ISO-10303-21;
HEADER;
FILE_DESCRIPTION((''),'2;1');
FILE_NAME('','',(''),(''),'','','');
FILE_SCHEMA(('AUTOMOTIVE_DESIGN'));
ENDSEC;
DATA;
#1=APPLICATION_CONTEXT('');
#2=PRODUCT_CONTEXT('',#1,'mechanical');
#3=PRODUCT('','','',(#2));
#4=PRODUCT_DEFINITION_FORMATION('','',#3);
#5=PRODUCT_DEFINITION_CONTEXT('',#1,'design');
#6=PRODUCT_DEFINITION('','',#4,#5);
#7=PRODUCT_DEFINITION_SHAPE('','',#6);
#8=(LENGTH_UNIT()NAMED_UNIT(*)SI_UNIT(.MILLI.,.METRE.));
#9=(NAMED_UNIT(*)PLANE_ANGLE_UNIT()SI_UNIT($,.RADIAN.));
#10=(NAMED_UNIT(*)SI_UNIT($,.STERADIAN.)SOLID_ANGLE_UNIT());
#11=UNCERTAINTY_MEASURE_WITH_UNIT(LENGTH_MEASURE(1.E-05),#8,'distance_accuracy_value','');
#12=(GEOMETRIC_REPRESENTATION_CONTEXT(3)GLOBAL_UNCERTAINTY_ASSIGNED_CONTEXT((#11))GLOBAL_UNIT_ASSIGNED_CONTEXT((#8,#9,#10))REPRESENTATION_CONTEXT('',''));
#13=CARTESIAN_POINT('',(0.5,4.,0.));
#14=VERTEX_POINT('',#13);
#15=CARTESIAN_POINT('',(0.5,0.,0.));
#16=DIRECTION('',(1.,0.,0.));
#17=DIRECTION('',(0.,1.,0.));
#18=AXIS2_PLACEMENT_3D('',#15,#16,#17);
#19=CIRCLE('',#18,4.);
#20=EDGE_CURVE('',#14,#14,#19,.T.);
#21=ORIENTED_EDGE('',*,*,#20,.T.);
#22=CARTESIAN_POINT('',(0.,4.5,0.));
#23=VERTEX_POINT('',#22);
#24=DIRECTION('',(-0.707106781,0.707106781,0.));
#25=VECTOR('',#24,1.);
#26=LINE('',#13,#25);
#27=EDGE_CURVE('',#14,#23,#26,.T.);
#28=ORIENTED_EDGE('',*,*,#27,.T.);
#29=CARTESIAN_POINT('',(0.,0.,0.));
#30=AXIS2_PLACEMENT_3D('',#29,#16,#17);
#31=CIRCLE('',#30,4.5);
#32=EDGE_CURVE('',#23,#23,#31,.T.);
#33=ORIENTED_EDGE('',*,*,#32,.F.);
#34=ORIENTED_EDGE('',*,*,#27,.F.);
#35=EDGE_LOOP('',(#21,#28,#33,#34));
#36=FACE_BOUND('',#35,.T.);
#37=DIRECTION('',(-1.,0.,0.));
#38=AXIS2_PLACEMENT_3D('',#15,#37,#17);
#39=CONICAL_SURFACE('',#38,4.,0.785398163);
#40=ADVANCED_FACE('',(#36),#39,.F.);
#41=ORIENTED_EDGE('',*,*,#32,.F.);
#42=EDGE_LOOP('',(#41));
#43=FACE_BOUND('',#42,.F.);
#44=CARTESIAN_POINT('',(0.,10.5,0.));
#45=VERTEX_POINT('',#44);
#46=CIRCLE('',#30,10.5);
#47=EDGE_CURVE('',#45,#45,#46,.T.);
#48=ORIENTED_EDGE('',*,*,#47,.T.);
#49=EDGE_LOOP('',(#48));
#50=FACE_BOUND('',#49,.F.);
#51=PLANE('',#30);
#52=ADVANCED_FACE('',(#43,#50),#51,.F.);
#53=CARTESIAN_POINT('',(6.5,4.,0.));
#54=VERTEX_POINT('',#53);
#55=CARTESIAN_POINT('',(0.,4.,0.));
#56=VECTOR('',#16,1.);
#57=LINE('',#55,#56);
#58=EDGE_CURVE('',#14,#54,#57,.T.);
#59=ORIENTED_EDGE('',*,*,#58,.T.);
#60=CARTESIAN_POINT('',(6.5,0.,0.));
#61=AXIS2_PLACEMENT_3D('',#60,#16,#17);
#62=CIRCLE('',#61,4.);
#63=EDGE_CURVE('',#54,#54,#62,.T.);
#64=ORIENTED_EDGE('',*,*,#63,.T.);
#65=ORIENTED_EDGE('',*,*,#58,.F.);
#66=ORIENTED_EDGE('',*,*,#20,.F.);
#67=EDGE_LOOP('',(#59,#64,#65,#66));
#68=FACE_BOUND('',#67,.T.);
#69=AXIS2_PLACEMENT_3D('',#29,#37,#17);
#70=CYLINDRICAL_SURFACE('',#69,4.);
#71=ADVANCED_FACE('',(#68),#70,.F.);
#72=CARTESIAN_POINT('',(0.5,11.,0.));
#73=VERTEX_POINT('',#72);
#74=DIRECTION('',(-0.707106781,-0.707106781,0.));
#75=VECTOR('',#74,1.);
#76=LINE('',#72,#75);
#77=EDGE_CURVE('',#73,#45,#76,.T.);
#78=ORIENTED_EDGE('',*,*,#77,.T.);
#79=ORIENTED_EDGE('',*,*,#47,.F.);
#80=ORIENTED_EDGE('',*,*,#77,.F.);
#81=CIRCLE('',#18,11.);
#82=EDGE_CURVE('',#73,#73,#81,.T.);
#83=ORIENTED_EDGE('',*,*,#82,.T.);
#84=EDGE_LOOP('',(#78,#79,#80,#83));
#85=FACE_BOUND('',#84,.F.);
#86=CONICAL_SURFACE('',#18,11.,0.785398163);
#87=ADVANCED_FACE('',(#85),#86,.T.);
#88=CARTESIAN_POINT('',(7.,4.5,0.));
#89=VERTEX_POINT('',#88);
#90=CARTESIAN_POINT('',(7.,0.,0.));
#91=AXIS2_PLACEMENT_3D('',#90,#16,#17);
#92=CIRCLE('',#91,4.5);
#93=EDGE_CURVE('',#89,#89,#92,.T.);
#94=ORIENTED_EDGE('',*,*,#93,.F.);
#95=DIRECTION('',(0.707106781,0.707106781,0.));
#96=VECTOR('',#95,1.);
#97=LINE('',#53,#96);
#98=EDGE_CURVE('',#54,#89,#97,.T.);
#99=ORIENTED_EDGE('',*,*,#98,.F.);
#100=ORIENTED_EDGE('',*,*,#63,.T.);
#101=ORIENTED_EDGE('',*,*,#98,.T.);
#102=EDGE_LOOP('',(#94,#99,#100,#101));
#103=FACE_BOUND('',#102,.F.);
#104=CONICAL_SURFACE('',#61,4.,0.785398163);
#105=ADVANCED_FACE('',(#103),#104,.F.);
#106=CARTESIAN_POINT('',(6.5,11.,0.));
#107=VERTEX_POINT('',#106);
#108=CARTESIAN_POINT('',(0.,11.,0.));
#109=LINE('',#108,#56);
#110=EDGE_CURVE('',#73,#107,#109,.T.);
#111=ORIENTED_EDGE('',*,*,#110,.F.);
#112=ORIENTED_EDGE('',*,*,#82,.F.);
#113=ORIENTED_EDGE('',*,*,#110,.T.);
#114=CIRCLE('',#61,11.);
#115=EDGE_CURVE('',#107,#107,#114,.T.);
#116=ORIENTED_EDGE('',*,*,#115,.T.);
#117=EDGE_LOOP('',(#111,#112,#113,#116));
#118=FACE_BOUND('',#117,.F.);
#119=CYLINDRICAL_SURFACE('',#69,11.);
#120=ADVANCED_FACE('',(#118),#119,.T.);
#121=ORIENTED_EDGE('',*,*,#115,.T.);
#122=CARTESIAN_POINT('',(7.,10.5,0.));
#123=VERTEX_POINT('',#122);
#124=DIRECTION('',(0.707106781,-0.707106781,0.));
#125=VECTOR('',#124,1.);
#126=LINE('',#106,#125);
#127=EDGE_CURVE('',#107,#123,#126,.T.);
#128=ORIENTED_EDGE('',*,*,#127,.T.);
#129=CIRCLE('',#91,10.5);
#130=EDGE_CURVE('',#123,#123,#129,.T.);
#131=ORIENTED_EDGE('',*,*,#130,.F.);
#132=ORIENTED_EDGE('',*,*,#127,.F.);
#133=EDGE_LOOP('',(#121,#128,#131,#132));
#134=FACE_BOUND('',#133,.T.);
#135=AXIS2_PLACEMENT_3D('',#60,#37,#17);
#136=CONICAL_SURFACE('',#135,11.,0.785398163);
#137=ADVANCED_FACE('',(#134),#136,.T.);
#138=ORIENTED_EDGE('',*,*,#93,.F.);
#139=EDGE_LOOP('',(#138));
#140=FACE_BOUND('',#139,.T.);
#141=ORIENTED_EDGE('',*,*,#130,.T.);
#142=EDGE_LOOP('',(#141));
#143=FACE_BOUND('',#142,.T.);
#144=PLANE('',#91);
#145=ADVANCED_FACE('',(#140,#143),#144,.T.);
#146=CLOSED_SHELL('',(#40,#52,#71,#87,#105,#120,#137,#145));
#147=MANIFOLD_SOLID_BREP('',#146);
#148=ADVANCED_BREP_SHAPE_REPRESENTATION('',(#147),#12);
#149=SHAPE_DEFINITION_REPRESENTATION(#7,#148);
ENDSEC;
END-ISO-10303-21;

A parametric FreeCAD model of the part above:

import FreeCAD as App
import Part
import Sketcher
Q = App.Units.Quantity


def edges_at(feature, points):
    """Names of the edges that pass closest to the given points."""
    edges = feature.Shape.Edges
    near = lambda p: min(range(len(edges)), key=lambda i: edges[i].distToShape(Part.Vertex(*p))[0])
    return sorted({f"Edge{near(p) + 1}" for p in points})

doc = App.newDocument("Part")
body = doc.addObject("PartDesign::Body", "Body")

sketch1 = body.newObject("Sketcher::SketchObject", "Sketch")
sketch1.AttachmentSupport = (doc.getObject("YZ_Plane"), [""])
sketch1.MapMode = "FlatFace"
sketch1.addGeometry([
    Part.Circle(App.Vector(0, 0, 0), App.Vector(0, 0, 1), 11),
    Part.Circle(App.Vector(0, 0, 0), App.Vector(0, 0, 1), 4),
], False)
sketch1.addConstraint([
    Sketcher.Constraint("Coincident", 0, 3, -1, 1),
    Sketcher.Constraint("Coincident", 1, 3, -1, 1),
    Sketcher.Constraint("Diameter", 0, Q("22 mm")),
    Sketcher.Constraint("Diameter", 1, Q("8 mm")),
])
pad1 = body.newObject("PartDesign::Pad", "Pad")
pad1.Profile = sketch1
pad1.Length = 7
doc.recompute()

chamfer = body.newObject("PartDesign::Chamfer", "Chamfer")
chamfer.Base = (pad1, edges_at(pad1, [
    (7, -11, 0),
    (7, -4, 0),
    (0, -11, 0),
    (0, -4, 0),
]))
chamfer.Size = 0.5

doc.recompute()
